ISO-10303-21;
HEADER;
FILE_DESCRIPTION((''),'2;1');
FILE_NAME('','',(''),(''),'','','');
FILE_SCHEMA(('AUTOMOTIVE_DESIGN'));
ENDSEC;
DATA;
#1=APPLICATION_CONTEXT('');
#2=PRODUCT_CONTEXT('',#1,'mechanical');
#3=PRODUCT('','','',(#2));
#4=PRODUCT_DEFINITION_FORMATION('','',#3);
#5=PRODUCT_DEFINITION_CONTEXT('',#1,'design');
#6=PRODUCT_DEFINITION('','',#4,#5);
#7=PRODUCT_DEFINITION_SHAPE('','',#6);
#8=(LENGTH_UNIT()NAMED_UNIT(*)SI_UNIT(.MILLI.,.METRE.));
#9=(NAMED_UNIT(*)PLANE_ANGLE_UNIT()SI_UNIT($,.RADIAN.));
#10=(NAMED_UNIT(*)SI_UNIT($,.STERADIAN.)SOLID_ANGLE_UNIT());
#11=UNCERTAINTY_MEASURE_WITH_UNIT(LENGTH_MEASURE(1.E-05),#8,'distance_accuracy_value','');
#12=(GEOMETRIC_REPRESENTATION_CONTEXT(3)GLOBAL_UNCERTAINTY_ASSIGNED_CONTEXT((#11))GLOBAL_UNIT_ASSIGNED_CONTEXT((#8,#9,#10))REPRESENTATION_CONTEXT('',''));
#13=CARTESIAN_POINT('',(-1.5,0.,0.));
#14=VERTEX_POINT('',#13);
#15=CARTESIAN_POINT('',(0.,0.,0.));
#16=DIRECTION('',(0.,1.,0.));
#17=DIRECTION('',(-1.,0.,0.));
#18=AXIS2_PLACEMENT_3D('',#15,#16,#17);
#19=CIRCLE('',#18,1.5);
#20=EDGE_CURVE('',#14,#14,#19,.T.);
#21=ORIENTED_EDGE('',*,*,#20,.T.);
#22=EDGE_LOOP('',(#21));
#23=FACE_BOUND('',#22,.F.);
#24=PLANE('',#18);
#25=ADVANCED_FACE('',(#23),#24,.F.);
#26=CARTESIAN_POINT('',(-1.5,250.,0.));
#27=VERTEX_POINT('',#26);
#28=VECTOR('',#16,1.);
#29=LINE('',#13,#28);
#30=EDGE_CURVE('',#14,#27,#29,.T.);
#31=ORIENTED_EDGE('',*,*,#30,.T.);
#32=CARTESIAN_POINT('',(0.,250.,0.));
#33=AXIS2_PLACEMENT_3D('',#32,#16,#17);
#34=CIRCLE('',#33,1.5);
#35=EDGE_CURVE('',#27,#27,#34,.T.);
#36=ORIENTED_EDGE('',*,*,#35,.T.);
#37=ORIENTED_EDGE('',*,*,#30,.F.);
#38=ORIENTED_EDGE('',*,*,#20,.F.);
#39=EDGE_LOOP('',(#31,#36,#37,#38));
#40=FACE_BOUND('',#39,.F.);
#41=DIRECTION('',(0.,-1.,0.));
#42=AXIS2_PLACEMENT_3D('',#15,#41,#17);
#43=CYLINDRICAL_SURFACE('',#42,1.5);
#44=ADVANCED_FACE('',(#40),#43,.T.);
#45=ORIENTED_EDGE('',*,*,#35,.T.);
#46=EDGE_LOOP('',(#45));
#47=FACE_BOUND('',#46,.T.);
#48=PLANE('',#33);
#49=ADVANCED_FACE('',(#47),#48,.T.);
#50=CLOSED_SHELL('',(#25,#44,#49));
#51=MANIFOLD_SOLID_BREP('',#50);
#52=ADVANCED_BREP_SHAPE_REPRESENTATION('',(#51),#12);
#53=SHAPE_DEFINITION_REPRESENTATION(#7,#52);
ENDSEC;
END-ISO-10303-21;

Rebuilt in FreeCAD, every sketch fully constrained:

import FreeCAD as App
import Part
import Sketcher

doc = App.newDocument("Part")
body = doc.addObject("PartDesign::Body", "Body")

sketch1 = body.newObject("Sketcher::SketchObject", "Sketch")
sketch1.AttachmentSupport = (doc.getObject("XZ_Plane"), [""])
sketch1.MapMode = "FlatFace"
sketch1.addGeometry(Part.Circle(App.Vector(0, 0, 0), App.Vector(0, 0, 1), 1.5), False)
sketch1.addConstraint([
    Sketcher.Constraint("Coincident", 0, 3, -1, 1),
    Sketcher.Constraint("Diameter", 0, 3.0),
])
pad1 = body.newObject("PartDesign::Pad", "Pad")
pad1.Profile = sketch1
pad1.Length = 250
pad1.Reversed = True

doc.recompute()
